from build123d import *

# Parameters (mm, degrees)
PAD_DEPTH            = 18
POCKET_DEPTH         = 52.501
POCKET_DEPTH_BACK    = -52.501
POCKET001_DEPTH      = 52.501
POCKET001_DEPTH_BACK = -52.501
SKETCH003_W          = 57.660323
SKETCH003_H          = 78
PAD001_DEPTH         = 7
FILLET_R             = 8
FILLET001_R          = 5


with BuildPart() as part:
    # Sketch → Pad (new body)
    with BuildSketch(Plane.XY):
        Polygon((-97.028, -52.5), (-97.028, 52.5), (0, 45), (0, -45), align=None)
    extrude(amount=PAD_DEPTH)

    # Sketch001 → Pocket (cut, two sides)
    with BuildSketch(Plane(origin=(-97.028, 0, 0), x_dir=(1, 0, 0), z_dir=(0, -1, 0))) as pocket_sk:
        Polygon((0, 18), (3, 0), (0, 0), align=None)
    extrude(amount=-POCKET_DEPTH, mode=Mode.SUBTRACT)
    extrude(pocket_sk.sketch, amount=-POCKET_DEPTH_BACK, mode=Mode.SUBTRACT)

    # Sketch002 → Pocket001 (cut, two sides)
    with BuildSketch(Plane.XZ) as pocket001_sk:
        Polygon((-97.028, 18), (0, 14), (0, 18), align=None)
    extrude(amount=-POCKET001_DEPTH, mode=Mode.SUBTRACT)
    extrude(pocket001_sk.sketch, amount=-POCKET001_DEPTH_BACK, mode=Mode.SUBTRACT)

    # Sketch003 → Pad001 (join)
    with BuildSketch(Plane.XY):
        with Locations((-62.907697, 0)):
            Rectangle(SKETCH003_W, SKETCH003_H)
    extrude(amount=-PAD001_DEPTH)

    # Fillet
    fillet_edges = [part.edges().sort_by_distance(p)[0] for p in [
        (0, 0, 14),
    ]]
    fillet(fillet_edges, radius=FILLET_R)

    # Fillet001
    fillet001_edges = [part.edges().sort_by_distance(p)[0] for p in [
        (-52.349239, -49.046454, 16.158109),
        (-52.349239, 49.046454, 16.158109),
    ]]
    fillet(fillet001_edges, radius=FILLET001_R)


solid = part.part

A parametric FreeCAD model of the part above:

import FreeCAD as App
import Part
import Sketcher
Q = App.Units.Quantity


def edges_at(feature, points):
    """Names of the edges that pass closest to the given points."""
    edges = feature.Shape.Edges
    near = lambda p: min(range(len(edges)), key=lambda i: edges[i].distToShape(Part.Vertex(*p))[0])
    return sorted({f"Edge{near(p) + 1}" for p in points})

doc = App.newDocument("Part")
body = doc.addObject("PartDesign::Body", "Body")

sketch1 = doc.addObject("Sketcher::SketchObject", "Sketch")
body.addObject(sketch1)
sketch1.AttachmentSupport = (doc.XY_Plane, [""])
sketch1.MapMode = "FlatFace"
sketch1.addGeometry(Part.LineSegment(App.Vector(-97.028, 52.5, 0), App.Vector(-97.028, -52.5, 0)), False)
sketch1.addGeometry(Part.LineSegment(App.Vector(-97.028, -52.5, 0), App.Vector(0, -45, 0)), False)
sketch1.addGeometry(Part.LineSegment(App.Vector(0, -45, 0), App.Vector(0, 45, 0)), False)
sketch1.addGeometry(Part.LineSegment(App.Vector(0, 45, 0), App.Vector(-97.028, 52.5, 0)), False)
sketch1.addConstraint(Sketcher.Constraint("Coincident", 0, 2, 1, 1))
sketch1.addConstraint(Sketcher.Constraint("Coincident", 1, 2, 2, 1))
sketch1.addConstraint(Sketcher.Constraint("Coincident", 2, 2, 3, 1))
sketch1.addConstraint(Sketcher.Constraint("Coincident", 3, 2, 0, 1))
sketch1.addConstraint(Sketcher.Constraint("Vertical", 0))
sketch1.addConstraint(Sketcher.Constraint("Vertical", 2))
sketch1.addConstraint(Sketcher.Constraint("Symmetric", 1, 2, 2, 2, -1, 1))
sketch1.addConstraint(Sketcher.Constraint("Equal", 1, 3))
sketch1.addConstraint(Sketcher.Constraint("DistanceY", 0, 2, 0, 1, 105.0))
sketch1.addConstraint(Sketcher.Constraint("DistanceY", 2, 1, 2, 2, 90.0))
sketch1.addConstraint(Sketcher.Constraint("Angle", 1, Q("4.420019 deg")))
pad1 = doc.addObject("PartDesign::Pad", "Pad")
body.addObject(pad1)
pad1.Profile = sketch1
pad1.Length = 18

sketch2 = doc.addObject("Sketcher::SketchObject", "Sketch001")
body.addObject(sketch2)
sketch2.AttachmentSupport = (doc.XZ_Plane, [""])
sketch2.MapMode = "FlatFace"
sketch2.addGeometry(Part.LineSegment(App.Vector(-94.028, 0, 0), App.Vector(-97.028, 18, 0)), False)
sketch2.addGeometry(Part.LineSegment(App.Vector(-97.028, 18, 0), App.Vector(-97.028, 0, 0)), False)
sketch2.addGeometry(Part.LineSegment(App.Vector(-97.028, 0, 0), App.Vector(-94.028, 0, 0)), False)
sketch2.addConstraint(Sketcher.Constraint("Coincident", 0, 2, 1, 1))
sketch2.addConstraint(Sketcher.Constraint("Coincident", 1, 2, 2, 1))
sketch2.addConstraint(Sketcher.Constraint("Coincident", 2, 2, 0, 1))
sketch2.addConstraint(Sketcher.Constraint("Vertical", 1))
sketch2.addConstraint(Sketcher.Constraint("Horizontal", 2))
sketch2.addConstraint(Sketcher.Constraint("PointOnObject", 1, 2, -1))
sketch2.addConstraint(Sketcher.Constraint("DistanceX", 2, 1, 2, 2, 3.0))
sketch2.addConstraint(Sketcher.Constraint("DistanceY", 1, 2, 1, 1, 18.0))
sketch2.addConstraint(Sketcher.Constraint("DistanceX", 0, 2, -1, 1, 97.028))
pocket1 = doc.addObject("PartDesign::Pocket", "Pocket")
body.addObject(pocket1)
pocket1.Profile = sketch2
pocket1.Type = "ThroughAll"
pocket1.Midplane = True

sketch3 = doc.addObject("Sketcher::SketchObject", "Sketch002")
body.addObject(sketch3)
sketch3.AttachmentSupport = (doc.XZ_Plane, [""])
sketch3.MapMode = "FlatFace"
sketch3.addGeometry(Part.LineSegment(App.Vector(-97.028, 18, 0), App.Vector(0, 14, 0)), False)
sketch3.addGeometry(Part.LineSegment(App.Vector(0, 14, 0), App.Vector(0, 18, 0)), False)
sketch3.addGeometry(Part.LineSegment(App.Vector(0, 18, 0), App.Vector(-97.028, 18, 0)), False)
sketch3.addConstraint(Sketcher.Constraint("Coincident", 0, 2, 1, 1))
sketch3.addConstraint(Sketcher.Constraint("Coincident", 1, 2, 2, 1))
sketch3.addConstraint(Sketcher.Constraint("Coincident", 2, 2, 0, 1))
sketch3.addConstraint(Sketcher.Constraint("Vertical", 1))
sketch3.addConstraint(Sketcher.Constraint("Horizontal", 2))
sketch3.addConstraint(Sketcher.Constraint("PointOnObject", 0, 2, -2))
sketch3.addConstraint(Sketcher.Constraint("DistanceY", 1, 1, 1, 2, 4.0))
sketch3.addConstraint(Sketcher.Constraint("DistanceY", -1, 1, 0, 2, 14.0))
sketch3.addConstraint(Sketcher.Constraint("DistanceX", 2, 2, 2, 1, 97.028))
pocket2 = doc.addObject("PartDesign::Pocket", "Pocket001")
body.addObject(pocket2)
pocket2.Profile = sketch3
pocket2.Type = "ThroughAll"
pocket2.Midplane = True

sketch4 = doc.addObject("Sketcher::SketchObject", "Sketch003")
body.addObject(sketch4)
sketch4.AttachmentSupport = (doc.XY_Plane, [""])
sketch4.MapMode = "FlatFace"
sketch4.addGeometry(Part.LineSegment(App.Vector(-91.737859, 39, 0), App.Vector(-91.737859, -39, 0)), False)
sketch4.addGeometry(Part.LineSegment(App.Vector(-91.737859, -39, 0), App.Vector(-34.077536, -39, 0)), False)
sketch4.addGeometry(Part.LineSegment(App.Vector(-34.077536, -39, 0), App.Vector(-34.077536, 39, 0)), False)
sketch4.addGeometry(Part.LineSegment(App.Vector(-34.077536, 39, 0), App.Vector(-91.737859, 39, 0)), False)
sketch4.addConstraint(Sketcher.Constraint("Coincident", 0, 2, 1, 1))
sketch4.addConstraint(Sketcher.Constraint("Coincident", 1, 2, 2, 1))
sketch4.addConstraint(Sketcher.Constraint("Coincident", 2, 2, 3, 1))
sketch4.addConstraint(Sketcher.Constraint("Coincident", 3, 2, 0, 1))
sketch4.addConstraint(Sketcher.Constraint("Vertical", 0))
sketch4.addConstraint(Sketcher.Constraint("Horizontal", 1))
sketch4.addConstraint(Sketcher.Constraint("Vertical", 2))
sketch4.addConstraint(Sketcher.Constraint("Horizontal", 3))
sketch4.addConstraint(Sketcher.Constraint("DistanceY", 0, 2, 0, 1, 78.0))
sketch4.addConstraint(Sketcher.Constraint("DistanceY", 0, 2, -1, 1, 39.0))
sketch4.addConstraint(Sketcher.Constraint("DistanceX", 1, 1, 1, 2, 57.660323))
sketch4.addConstraint(Sketcher.Constraint("DistanceX", 0, 2, -1, 1, 91.737859))
pad2 = doc.addObject("PartDesign::Pad", "Pad001")
body.addObject(pad2)
pad2.Profile = sketch4
pad2.Length = 7
pad2.Reversed = True
doc.recompute()

fillet = doc.addObject("PartDesign::Fillet", "Fillet")
body.addObject(fillet)
fillet.Base = (pad2, edges_at(pad2, [(0, 0, 14)]))
fillet.Radius = 8
doc.recompute()

fillet2 = doc.addObject("PartDesign::Fillet", "Fillet001")
body.addObject(fillet2)
fillet2.Base = (fillet, edges_at(fillet, [(-52.349, -49.046, 16.158), (-52.349, 49.046, 16.158)]))
fillet2.Radius = 5

doc.recompute()
